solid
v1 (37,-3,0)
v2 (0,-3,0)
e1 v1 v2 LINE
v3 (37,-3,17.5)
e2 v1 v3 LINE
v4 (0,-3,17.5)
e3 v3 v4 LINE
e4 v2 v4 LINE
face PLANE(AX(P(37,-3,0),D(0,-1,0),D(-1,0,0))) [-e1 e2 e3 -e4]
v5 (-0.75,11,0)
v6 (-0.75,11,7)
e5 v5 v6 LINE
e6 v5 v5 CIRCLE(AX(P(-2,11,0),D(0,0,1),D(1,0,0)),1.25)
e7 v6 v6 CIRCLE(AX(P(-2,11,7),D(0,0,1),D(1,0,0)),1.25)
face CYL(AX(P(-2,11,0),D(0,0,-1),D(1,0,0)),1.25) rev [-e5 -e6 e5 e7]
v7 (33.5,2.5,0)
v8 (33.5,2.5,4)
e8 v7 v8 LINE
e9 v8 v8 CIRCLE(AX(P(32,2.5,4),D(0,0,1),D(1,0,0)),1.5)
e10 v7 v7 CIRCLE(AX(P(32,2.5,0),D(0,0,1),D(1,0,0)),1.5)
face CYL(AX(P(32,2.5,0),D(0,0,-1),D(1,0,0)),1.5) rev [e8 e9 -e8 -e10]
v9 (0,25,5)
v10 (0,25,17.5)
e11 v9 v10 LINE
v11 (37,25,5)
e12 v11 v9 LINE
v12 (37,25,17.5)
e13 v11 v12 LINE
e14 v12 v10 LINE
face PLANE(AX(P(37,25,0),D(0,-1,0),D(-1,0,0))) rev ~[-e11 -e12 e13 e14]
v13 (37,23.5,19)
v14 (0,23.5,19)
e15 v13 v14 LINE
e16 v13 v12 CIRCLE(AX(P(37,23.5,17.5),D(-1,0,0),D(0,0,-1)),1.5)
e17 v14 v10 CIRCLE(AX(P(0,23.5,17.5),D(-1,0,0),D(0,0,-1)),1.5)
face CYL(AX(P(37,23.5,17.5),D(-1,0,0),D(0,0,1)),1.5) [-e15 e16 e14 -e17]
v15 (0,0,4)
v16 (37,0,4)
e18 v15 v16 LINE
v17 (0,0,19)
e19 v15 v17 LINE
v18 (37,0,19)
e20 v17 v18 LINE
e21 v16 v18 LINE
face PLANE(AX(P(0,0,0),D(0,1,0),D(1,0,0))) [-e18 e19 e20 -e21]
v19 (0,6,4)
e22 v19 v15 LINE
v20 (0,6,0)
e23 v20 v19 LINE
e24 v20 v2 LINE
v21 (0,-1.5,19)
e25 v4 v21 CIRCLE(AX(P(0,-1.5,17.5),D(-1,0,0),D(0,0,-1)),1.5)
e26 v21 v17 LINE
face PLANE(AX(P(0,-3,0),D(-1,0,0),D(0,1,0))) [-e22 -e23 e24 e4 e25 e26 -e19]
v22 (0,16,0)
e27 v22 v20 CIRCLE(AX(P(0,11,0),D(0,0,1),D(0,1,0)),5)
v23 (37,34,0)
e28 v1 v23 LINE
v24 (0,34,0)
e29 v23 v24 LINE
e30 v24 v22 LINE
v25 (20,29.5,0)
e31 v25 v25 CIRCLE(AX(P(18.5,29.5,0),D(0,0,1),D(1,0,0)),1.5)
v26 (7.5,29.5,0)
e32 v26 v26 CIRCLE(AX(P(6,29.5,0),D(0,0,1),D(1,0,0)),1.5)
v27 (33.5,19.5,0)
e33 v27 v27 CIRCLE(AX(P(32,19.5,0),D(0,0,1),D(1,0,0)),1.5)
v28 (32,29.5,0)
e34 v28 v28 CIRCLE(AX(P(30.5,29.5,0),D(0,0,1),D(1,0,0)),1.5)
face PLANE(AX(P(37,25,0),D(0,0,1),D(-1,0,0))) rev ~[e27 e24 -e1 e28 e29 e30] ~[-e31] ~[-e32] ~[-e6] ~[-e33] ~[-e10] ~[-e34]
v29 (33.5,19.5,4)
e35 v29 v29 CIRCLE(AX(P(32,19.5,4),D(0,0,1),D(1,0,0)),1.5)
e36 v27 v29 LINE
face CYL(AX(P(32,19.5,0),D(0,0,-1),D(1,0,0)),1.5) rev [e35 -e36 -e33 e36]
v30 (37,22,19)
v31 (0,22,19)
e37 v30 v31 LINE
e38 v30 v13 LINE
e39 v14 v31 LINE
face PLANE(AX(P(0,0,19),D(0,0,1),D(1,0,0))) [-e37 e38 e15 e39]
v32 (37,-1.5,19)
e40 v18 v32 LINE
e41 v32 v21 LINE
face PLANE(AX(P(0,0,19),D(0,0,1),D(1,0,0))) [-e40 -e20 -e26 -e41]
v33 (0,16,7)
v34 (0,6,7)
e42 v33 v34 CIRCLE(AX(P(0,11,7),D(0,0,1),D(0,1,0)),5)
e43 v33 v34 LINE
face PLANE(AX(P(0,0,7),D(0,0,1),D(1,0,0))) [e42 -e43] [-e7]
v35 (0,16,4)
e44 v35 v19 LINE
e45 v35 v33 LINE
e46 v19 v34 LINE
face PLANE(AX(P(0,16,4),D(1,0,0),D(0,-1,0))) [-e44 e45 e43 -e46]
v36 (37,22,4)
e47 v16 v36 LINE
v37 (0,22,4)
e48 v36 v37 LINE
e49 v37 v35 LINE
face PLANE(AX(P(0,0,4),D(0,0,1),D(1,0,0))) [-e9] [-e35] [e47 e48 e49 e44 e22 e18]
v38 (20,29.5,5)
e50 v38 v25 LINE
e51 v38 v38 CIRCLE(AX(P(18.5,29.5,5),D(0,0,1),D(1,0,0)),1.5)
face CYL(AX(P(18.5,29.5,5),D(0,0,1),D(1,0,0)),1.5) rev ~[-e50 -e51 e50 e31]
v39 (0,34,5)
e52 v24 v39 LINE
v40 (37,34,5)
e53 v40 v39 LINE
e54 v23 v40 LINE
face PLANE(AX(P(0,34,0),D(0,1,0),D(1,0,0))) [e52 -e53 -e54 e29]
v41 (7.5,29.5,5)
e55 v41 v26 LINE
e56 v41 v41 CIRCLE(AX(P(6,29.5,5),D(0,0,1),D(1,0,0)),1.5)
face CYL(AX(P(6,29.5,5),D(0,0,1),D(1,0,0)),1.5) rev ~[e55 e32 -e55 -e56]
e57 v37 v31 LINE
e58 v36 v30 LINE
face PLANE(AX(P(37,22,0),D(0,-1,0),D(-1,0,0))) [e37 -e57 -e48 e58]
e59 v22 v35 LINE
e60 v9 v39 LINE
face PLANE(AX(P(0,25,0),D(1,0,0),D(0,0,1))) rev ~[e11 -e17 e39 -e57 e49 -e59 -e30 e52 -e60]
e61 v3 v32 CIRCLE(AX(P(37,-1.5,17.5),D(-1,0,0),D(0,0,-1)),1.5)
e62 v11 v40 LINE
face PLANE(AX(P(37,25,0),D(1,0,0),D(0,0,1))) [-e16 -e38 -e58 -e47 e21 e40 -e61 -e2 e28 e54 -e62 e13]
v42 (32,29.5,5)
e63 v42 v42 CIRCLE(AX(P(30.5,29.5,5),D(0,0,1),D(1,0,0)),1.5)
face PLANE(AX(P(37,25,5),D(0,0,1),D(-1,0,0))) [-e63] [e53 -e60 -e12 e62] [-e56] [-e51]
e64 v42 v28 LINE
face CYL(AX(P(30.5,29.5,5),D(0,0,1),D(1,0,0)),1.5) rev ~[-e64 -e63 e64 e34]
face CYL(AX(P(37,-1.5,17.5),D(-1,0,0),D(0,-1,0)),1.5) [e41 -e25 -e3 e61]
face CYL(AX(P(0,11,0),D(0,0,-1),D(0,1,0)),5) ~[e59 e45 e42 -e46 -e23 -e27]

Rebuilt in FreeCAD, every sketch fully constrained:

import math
import FreeCAD as App
import Part
import Sketcher


def edges_at(feature, points):
    """Names of the edges that pass closest to the given points."""
    edges = feature.Shape.Edges
    near = lambda p: min(range(len(edges)), key=lambda i: edges[i].distToShape(Part.Vertex(*p))[0])
    return sorted({f"Edge{near(p) + 1}" for p in points})


def add_polygon(sketch, points):
    """Adds a closed chain of lines whose ends are joined by coincident constraints."""
    first, n = sketch.GeometryCount, len(points)
    for a, b in zip(points, points[1:] + points[:1]):
        sketch.addGeometry(Part.LineSegment(App.Vector(*a, 0), App.Vector(*b, 0)), False)
    for i in range(n):
        sketch.addConstraint(Sketcher.Constraint("Coincident", first + i, 2, first + (i + 1) % n, 1))

doc = App.newDocument("Part")
params = doc.addObject("Spreadsheet::Sheet", "Params")
for row, (alias, value) in enumerate([
    ("sketch1_diameter", "3 mm"),
    ("sketch1_radius", "5 mm"),
    ("sketch1_diameter2", "2.5 mm"),
    ("sketch1_width", "37 mm"),
    ("sketch1_height", "22 mm"),
    ("pad1_length", "4 mm"),
    ("sketch2_radius", "5 mm"),
    ("sketch2_diameter", "2.5 mm"),
    ("pad2_length", "3 mm"),
    ("sketch3_width", "37 mm"),
    ("sketch3_height", "3 mm"),
    ("pad3_length", "19 mm"),
    ("sketch4_width", "37 mm"),
    ("sketch4_height", "3 mm"),
    ("pad4_length", "19 mm"),
    ("fillet_radius", "1.5 mm"),
    ("fillet2_radius", "1.5 mm"),
    ("sketch5_width", "37 mm"),
    ("sketch5_height", "5 mm"),
    ("pad5_length", "9 mm"),
    ("sketch6_diameter", "3 mm"),
    ("pocket1_length", "9 mm"),
], start=1):
    params.set(f"A{row}", alias)
    params.set(f"B{row}", "=" + value)
    params.setAlias(f"B{row}", alias)

body = doc.addObject("PartDesign::Body", "Body")

sketch1 = body.newObject("Sketcher::SketchObject", "Sketch")
sketch1.AttachmentSupport = (doc.getObject("XY_Plane"), [""])
sketch1.MapMode = "FlatFace"
sketch1.addGeometry(Part.LineSegment(App.Vector(0, 6, 0), App.Vector(0, 0, 0)), False)
sketch1.addGeometry(Part.LineSegment(App.Vector(0, 0, 0), App.Vector(37, 0, 0)), False)
sketch1.addGeometry(Part.LineSegment(App.Vector(37, 0, 0), App.Vector(37, 22, 0)), False)
sketch1.addGeometry(Part.LineSegment(App.Vector(37, 22, 0), App.Vector(0, 22, 0)), False)
sketch1.addGeometry(Part.LineSegment(App.Vector(0, 22, 0), App.Vector(0, 16, 0)), False)
sketch1.addGeometry(Part.ArcOfCircle(Part.Circle(App.Vector(0, 11, 0), App.Vector(0, 0, 1), 5), math.radians(90), math.radians(270)), False)
sketch1.addGeometry(Part.Circle(App.Vector(32, 2.5, 0), App.Vector(0, 0, 1), 1.5), False)
sketch1.addGeometry(Part.Circle(App.Vector(-2, 11, 0), App.Vector(0, 0, 1), 1.2), False)
sketch1.addGeometry(Part.Circle(App.Vector(32, 19.5, 0), App.Vector(0, 0, 1), 1.5), False)
sketch1.addConstraint(Sketcher.Constraint("Coincident", 0, 2, 1, 1))
sketch1.addConstraint(Sketcher.Constraint("Coincident", 1, 2, 2, 1))
sketch1.addConstraint(Sketcher.Constraint("Coincident", 2, 2, 3, 1))
sketch1.addConstraint(Sketcher.Constraint("Coincident", 3, 2, 4, 1))
sketch1.addConstraint(Sketcher.Constraint("Coincident", 4, 2, 5, 1))
sketch1.addConstraint(Sketcher.Constraint("Coincident", 5, 2, 0, 1))
sketch1.addConstraint(Sketcher.Constraint("Vertical", 0))
sketch1.addConstraint(Sketcher.Constraint("Horizontal", 1))
sketch1.addConstraint(Sketcher.Constraint("Vertical", 2))
sketch1.addConstraint(Sketcher.Constraint("Horizontal", 3))
sketch1.addConstraint(Sketcher.Constraint("Vertical", 4))
sketch1.addConstraint(Sketcher.Constraint("Coincident", 0, 2, -1, 1))
sketch1.addConstraint(Sketcher.Constraint("Equal", 6, 8))
sketch1.addConstraint(Sketcher.Constraint("PointOnObject", 5, 3, -2))
sketch1.addConstraint(Sketcher.Constraint("PointOnObject", 3, 2, -2))
sketch1.addConstraint(Sketcher.Constraint("Horizontal", 5, 3, 7, 3))
sketch1.addConstraint(Sketcher.Constraint("Vertical", 6, 3, 8, 3))
sketch1.addConstraint(Sketcher.Constraint("Equal", 0, 4))
sketch1.addConstraint(Sketcher.Constraint("Diameter", 6, 3.0))
sketch1.addConstraint(Sketcher.Constraint("Radius", 5, 5.0))
sketch1.addConstraint(Sketcher.Constraint("Diameter", 7, 2.5))
sketch1.addConstraint(Sketcher.Constraint("DistanceX", 1, 1, 1, 2, 37.0))
sketch1.addConstraint(Sketcher.Constraint("DistanceY", 2, 1, 2, 2, 22.0))
sketch1.addConstraint(Sketcher.Constraint("DistanceX", 6, 3, 1, 2, 5.0))
sketch1.addConstraint(Sketcher.Constraint("DistanceY", -1, 1, 6, 3, 2.5))
sketch1.addConstraint(Sketcher.Constraint("DistanceY", 8, 3, 2, 2, 2.5))
sketch1.addConstraint(Sketcher.Constraint("DistanceX", 7, 3, -1, 1, 2.0))
sketch1.setExpression("Constraints[18]", "Params.sketch1_diameter")
sketch1.setExpression("Constraints[19]", "Params.sketch1_radius")
sketch1.setExpression("Constraints[20]", "Params.sketch1_diameter2")
sketch1.setExpression("Constraints[21]", "Params.sketch1_width")
sketch1.setExpression("Constraints[22]", "Params.sketch1_height")
pad1 = body.newObject("PartDesign::Pad", "Pad")
pad1.Profile = sketch1
pad1.setExpression("Length", "Params.pad1_length")

sketch2 = body.newObject("Sketcher::SketchObject", "Sketch001")
sketch2.AttachmentSupport = (doc.getObject("XY_Plane"), [""])
sketch2.MapMode = "FlatFace"
sketch2.AttachmentOffset = App.Placement(App.Vector(0, 0, 4), App.Rotation())
sketch2.addGeometry(Part.LineSegment(App.Vector(0, 6, 0), App.Vector(0, 16, 0)), False)
sketch2.addGeometry(Part.ArcOfCircle(Part.Circle(App.Vector(0, 11, 0), App.Vector(0, 0, 1), 5), math.radians(90), math.radians(270)), False)
sketch2.addGeometry(Part.Circle(App.Vector(-2, 11, 0), App.Vector(0, 0, 1), 1.2), False)
sketch2.addConstraint(Sketcher.Constraint("Coincident", 0, 1, 1, 2))
sketch2.addConstraint(Sketcher.Constraint("Coincident", 1, 1, 0, 2))
sketch2.addConstraint(Sketcher.Constraint("Vertical", 0))
sketch2.addConstraint(Sketcher.Constraint("PointOnObject", 1, 3, -2))
sketch2.addConstraint(Sketcher.Constraint("PointOnObject", 0, 1, -2))
sketch2.addConstraint(Sketcher.Constraint("Horizontal", 1, 3, 2, 3))
sketch2.addConstraint(Sketcher.Constraint("Radius", 1, 5.0))
sketch2.addConstraint(Sketcher.Constraint("Diameter", 2, 2.5))
sketch2.addConstraint(Sketcher.Constraint("DistanceY", -1, 1, 1, 3, 11.0))
sketch2.addConstraint(Sketcher.Constraint("DistanceX", 2, 3, -1, 1, 2.0))
sketch2.setExpression("Constraints[6]", "Params.sketch2_radius")
sketch2.setExpression("Constraints[7]", "Params.sketch2_diameter")
pad2 = body.newObject("PartDesign::Pad", "Pad001")
pad2.Profile = sketch2
pad2.setExpression("Length", "Params.pad2_length")

sketch3 = body.newObject("Sketcher::SketchObject", "Sketch002")
sketch3.AttachmentSupport = (doc.getObject("XY_Plane"), [""])
sketch3.MapMode = "FlatFace"
add_polygon(sketch3, [(37, 0), (0, 0), (0, -3), (37, -3)])
sketch3.addConstraint(Sketcher.Constraint("Horizontal", 0))
sketch3.addConstraint(Sketcher.Constraint("Vertical", 1))
sketch3.addConstraint(Sketcher.Constraint("Horizontal", 2))
sketch3.addConstraint(Sketcher.Constraint("Vertical", 3))
sketch3.addConstraint(Sketcher.Constraint("Coincident", 0, 2, -1, 1))
sketch3.addConstraint(Sketcher.Constraint("DistanceX", 0, 2, 0, 1, 37.0))
sketch3.addConstraint(Sketcher.Constraint("DistanceY", 1, 2, 1, 1, 3.0))
sketch3.setExpression("Constraints[9]", "Params.sketch3_width")
sketch3.setExpression("Constraints[10]", "Params.sketch3_height")
pad3 = body.newObject("PartDesign::Pad", "Pad002")
pad3.Profile = sketch3
pad3.setExpression("Length", "Params.pad3_length")

sketch4 = body.newObject("Sketcher::SketchObject", "Sketch003")
sketch4.AttachmentSupport = (doc.getObject("XY_Plane"), [""])
sketch4.MapMode = "FlatFace"
add_polygon(sketch4, [(0, 22), (37, 22), (37, 25), (0, 25)])
sketch4.addConstraint(Sketcher.Constraint("Horizontal", 0))
sketch4.addConstraint(Sketcher.Constraint("Vertical", 1))
sketch4.addConstraint(Sketcher.Constraint("Horizontal", 2))
sketch4.addConstraint(Sketcher.Constraint("Vertical", 3))
sketch4.addConstraint(Sketcher.Constraint("PointOnObject", 2, 2, -2))
sketch4.addConstraint(Sketcher.Constraint("DistanceX", 0, 1, 0, 2, 37.0))
sketch4.addConstraint(Sketcher.Constraint("DistanceY", 1, 1, 1, 2, 3.0))
sketch4.addConstraint(Sketcher.Constraint("DistanceY", -1, 1, 0, 2, 22.0))
sketch4.setExpression("Constraints[9]", "Params.sketch4_width")
sketch4.setExpression("Constraints[10]", "Params.sketch4_height")
pad4 = body.newObject("PartDesign::Pad", "Pad003")
pad4.Profile = sketch4
pad4.setExpression("Length", "Params.pad4_length")
doc.recompute()

fillet = body.newObject("PartDesign::Fillet", "Fillet")
fillet.Base = (pad4, edges_at(pad4, [(18.5, 25, 19)]))
fillet.setExpression("Radius", "Params.fillet_radius")
doc.recompute()

fillet2 = body.newObject("PartDesign::Fillet", "Fillet001")
fillet2.Base = (fillet, edges_at(fillet, [(18.5, -3, 19)]))
fillet2.setExpression("Radius", "Params.fillet2_radius")

sketch5 = body.newObject("Sketcher::SketchObject", "Sketch004")
sketch5.AttachmentSupport = (doc.getObject("XZ_Plane"), [""])
sketch5.MapMode = "FlatFace"
sketch5.AttachmentOffset = App.Placement(App.Vector(0, 0, -25), App.Rotation())
add_polygon(sketch5, [(0, 5), (37, 5), (37, 0), (0, 0)])
sketch5.addConstraint(Sketcher.Constraint("Horizontal", 0))
sketch5.addConstraint(Sketcher.Constraint("Vertical", 1))
sketch5.addConstraint(Sketcher.Constraint("Horizontal", 2))
sketch5.addConstraint(Sketcher.Constraint("Vertical", 3))
sketch5.addConstraint(Sketcher.Constraint("Coincident", 2, 2, -1, 1))
sketch5.addConstraint(Sketcher.Constraint("DistanceX", 0, 1, 0, 2, 37.0))
sketch5.addConstraint(Sketcher.Constraint("DistanceY", 1, 2, 1, 1, 5.0))
sketch5.setExpression("Constraints[9]", "Params.sketch5_width")
sketch5.setExpression("Constraints[10]", "Params.sketch5_height")
pad5 = body.newObject("PartDesign::Pad", "Pad004")
pad5.Profile = sketch5
pad5.setExpression("Length", "Params.pad5_length")
pad5.Reversed = True

sketch6 = body.newObject("Sketcher::SketchObject", "Sketch005")
sketch6.AttachmentSupport = (doc.getObject("XY_Plane"), [""])
sketch6.MapMode = "FlatFace"
sketch6.AttachmentOffset = App.Placement(App.Vector(0, 0, 5), App.Rotation())
sketch6.addGeometry(Part.Circle(App.Vector(6, 29.5, 0), App.Vector(0, 0, 1), 1.5), False)
sketch6.addGeometry(Part.Circle(App.Vector(18.5, 29.5, 0), App.Vector(0, 0, 1), 1.5), False)
sketch6.addGeometry(Part.Circle(App.Vector(30.5, 29.5, 0), App.Vector(0, 0, 1), 1.5), False)
sketch6.addConstraint(Sketcher.Constraint("Equal", 0, 1))
sketch6.addConstraint(Sketcher.Constraint("Equal", 1, 2))
sketch6.addConstraint(Sketcher.Constraint("Horizontal", 0, 3, 1, 3))
sketch6.addConstraint(Sketcher.Constraint("Horizontal", 1, 3, 2, 3))
sketch6.addConstraint(Sketcher.Constraint("Diameter", 0, 3.0))
sketch6.addConstraint(Sketcher.Constraint("DistanceX", -1, 1, 0, 3, 6.0))
sketch6.addConstraint(Sketcher.Constraint("DistanceX", 1, 3, 2, 3, 12.0))
sketch6.addConstraint(Sketcher.Constraint("DistanceY", -1, 1, 0, 3, 29.5))
sketch6.addConstraint(Sketcher.Constraint("DistanceX", -1, 1, 1, 3, 18.5))
sketch6.setExpression("Constraints[4]", "Params.sketch6_diameter")
pocket1 = body.newObject("PartDesign::Pocket", "Pocket")
pocket1.Profile = sketch6
pocket1.setExpression("Length", "Params.pocket1_length")

doc.recompute()
